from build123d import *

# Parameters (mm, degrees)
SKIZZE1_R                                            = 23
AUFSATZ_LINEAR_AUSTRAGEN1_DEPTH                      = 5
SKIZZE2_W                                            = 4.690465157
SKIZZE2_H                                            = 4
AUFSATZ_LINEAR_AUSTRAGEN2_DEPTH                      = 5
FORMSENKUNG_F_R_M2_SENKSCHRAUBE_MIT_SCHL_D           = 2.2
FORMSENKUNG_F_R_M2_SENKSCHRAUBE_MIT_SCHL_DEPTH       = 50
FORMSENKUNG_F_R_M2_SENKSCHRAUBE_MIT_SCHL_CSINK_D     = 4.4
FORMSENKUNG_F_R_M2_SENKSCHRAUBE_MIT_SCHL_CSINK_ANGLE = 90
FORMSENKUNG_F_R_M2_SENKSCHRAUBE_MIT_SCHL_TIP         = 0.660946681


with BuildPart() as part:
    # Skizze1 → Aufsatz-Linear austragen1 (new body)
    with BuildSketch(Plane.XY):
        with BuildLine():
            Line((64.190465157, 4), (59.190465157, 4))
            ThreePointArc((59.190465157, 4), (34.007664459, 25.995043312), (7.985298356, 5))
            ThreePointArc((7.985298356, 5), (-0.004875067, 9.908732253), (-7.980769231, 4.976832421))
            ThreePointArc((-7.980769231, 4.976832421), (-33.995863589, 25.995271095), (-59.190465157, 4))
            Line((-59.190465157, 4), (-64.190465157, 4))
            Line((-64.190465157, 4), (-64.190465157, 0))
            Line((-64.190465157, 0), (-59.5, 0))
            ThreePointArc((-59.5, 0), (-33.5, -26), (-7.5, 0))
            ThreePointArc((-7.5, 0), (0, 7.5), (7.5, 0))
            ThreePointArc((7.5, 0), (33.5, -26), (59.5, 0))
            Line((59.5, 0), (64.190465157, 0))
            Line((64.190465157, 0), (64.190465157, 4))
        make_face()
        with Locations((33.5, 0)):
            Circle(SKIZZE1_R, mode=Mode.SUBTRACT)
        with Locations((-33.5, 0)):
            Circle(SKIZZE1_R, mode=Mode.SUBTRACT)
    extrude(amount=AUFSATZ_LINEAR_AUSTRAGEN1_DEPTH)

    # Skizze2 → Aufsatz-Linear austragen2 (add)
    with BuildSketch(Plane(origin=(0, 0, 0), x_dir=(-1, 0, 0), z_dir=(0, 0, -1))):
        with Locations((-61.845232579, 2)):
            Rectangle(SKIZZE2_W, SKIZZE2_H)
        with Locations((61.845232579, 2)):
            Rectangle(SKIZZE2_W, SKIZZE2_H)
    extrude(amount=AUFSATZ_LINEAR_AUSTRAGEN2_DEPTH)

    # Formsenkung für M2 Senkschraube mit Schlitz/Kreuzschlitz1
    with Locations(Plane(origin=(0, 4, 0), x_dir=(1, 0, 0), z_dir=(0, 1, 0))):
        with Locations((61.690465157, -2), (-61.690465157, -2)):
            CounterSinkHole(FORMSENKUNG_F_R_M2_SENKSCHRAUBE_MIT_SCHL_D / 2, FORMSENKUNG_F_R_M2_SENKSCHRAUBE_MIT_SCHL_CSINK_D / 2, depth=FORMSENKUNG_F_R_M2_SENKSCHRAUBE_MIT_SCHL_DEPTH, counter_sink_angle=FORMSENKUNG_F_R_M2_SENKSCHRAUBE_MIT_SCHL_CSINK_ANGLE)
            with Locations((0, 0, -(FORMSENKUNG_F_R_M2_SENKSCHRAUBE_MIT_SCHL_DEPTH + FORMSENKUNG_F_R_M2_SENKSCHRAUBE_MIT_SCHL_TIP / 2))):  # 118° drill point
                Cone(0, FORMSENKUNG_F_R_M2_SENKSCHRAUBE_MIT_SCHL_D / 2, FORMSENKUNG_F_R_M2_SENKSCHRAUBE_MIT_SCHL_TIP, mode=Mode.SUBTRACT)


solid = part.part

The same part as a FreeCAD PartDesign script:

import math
import FreeCAD as App
import Part
import Sketcher

doc = App.newDocument("Part")
params = doc.addObject("Spreadsheet::Sheet", "Params")
for row, (alias, value) in enumerate([
    ("sketch1_diameter", "46 mm"),
    ("sketch1_radius", "26 mm"),
    ("sketch1_radius2", "7.5 mm"),
    ("sketch1_width", "5 mm"),
    ("sketch1_height", "4 mm"),
    ("pad1_length", "5 mm"),
    ("sketch2_height", "4 mm"),
    ("pad2_length", "5 mm"),
    ("sketch3_diameter", "2.2 mm"),
    ("hole_diameter", "2.2 mm"),
    ("hole_depth", "50 mm"),
    ("hole_csink_diameter", "4.4 mm"),
], start=1):
    params.set(f"A{row}", alias)
    params.set(f"B{row}", "=" + value)
    params.setAlias(f"B{row}", alias)

body = doc.addObject("PartDesign::Body", "Body")

# Sketch on XY plane
sketch1 = doc.addObject("Sketcher::SketchObject", "Sketch")
body.addObject(sketch1)
sketch1.AttachmentSupport = (doc.XY_Plane, [""])
sketch1.MapMode = "FlatFace"
sketch1.addGeometry([
    Part.LineSegment(App.Vector(64.2, 4, 0), App.Vector(59.2, 4, 0)),  # 0
    Part.ArcOfCircle(Part.Circle(App.Vector(33.5, 0, 0), App.Vector(0, 0, 1), 26), math.radians(9), math.radians(169)),  # 1
    Part.ArcOfCircle(Part.Circle(App.Vector(0, 1, 0), App.Vector(0, 0, 1), 8.9), math.radians(27), math.radians(153)),  # 2
    Part.ArcOfCircle(Part.Circle(App.Vector(-33.5, 0, 0), App.Vector(0, 0, 1), 26), math.radians(11), math.radians(171)),  # 3
    Part.LineSegment(App.Vector(-59.2, 4, 0), App.Vector(-64.2, 4, 0)),  # 4
    Part.LineSegment(App.Vector(-64.2, 4, 0), App.Vector(-64.2, 0, 0)),  # 5
    Part.LineSegment(App.Vector(-64.2, 0, 0), App.Vector(-59.5, 0, 0)),  # 6
    Part.ArcOfCircle(Part.Circle(App.Vector(-33.5, 0, 0), App.Vector(0, 0, 1), 26), math.radians(180), math.radians(360)),  # 7
    Part.ArcOfCircle(Part.Circle(App.Vector(0, 0, 0), App.Vector(0, 0, 1), 7.5), math.radians(0), math.radians(180)),  # 8
    Part.ArcOfCircle(Part.Circle(App.Vector(33.5, 0, 0), App.Vector(0, 0, 1), 26), math.radians(180), math.radians(360)),  # 9
    Part.LineSegment(App.Vector(59.5, 0, 0), App.Vector(64.2, 0, 0)),  # 10
    Part.LineSegment(App.Vector(64.2, 0, 0), App.Vector(64.2, 4, 0)),  # 11
    Part.Circle(App.Vector(-33.5, 0, 0), App.Vector(0, 0, 1), 23),  # 12
    Part.Circle(App.Vector(33.5, 0, 0), App.Vector(0, 0, 1), 23),  # 13
], False)
sketch1.addConstraint([
    Sketcher.Constraint("Coincident", 0, 2, 1, 1),
    Sketcher.Constraint("Coincident", 1, 2, 2, 1),
    Sketcher.Constraint("Coincident", 2, 2, 3, 1),
    Sketcher.Constraint("Coincident", 3, 2, 4, 1),
    Sketcher.Constraint("Coincident", 4, 2, 5, 1),
    Sketcher.Constraint("Coincident", 5, 2, 6, 1),
    Sketcher.Constraint("Coincident", 6, 2, 7, 1),
    Sketcher.Constraint("Tangent", 7, 2, 8, 2),
    Sketcher.Constraint("Tangent", 8, 1, 9, 1),
    Sketcher.Constraint("Coincident", 9, 2, 10, 1),
    Sketcher.Constraint("Coincident", 10, 2, 11, 1),
    Sketcher.Constraint("Coincident", 11, 2, 0, 1),
    Sketcher.Constraint("Horizontal", 0),
    Sketcher.Constraint("Horizontal", 4),
    Sketcher.Constraint("Vertical", 5),
    Sketcher.Constraint("Horizontal", 6),
    Sketcher.Constraint("Horizontal", 10),
    Sketcher.Constraint("Vertical", 11),
    Sketcher.Constraint("Coincident", 8, 3, -1, 1),
    Sketcher.Constraint("Coincident", 7, 3, 3, 3),
    Sketcher.Constraint("Coincident", 9, 3, 1, 3),
    Sketcher.Constraint("Coincident", 12, 3, 3, 3),
    Sketcher.Constraint("Coincident", 13, 3, 1, 3),
    Sketcher.Constraint("Equal", 1, 3),
    Sketcher.Constraint("Equal", 3, 7),
    Sketcher.Constraint("Equal", 7, 9),
    Sketcher.Constraint("Equal", 12, 13),
    Sketcher.Constraint("Symmetric", 5, 2, 10, 2, -1, 1),
    Sketcher.Constraint("Symmetric", 0, 2, 3, 2, -2),
    Sketcher.Constraint("PointOnObject", 1, 3, -1),
    Sketcher.Constraint("PointOnObject", 5, 2, -1),
    Sketcher.Constraint("Diameter", 12, 46.0),
    Sketcher.Constraint("Radius", 1, 26.0),
    Sketcher.Constraint("Radius", 8, 7.5),
    Sketcher.Constraint("DistanceX", 0, 2, 0, 1, 5.0),
    Sketcher.Constraint("DistanceY", 5, 2, 5, 1, 4.0),
    Sketcher.Constraint("DistanceY", -1, 1, 1, 2, 5.0),
    Sketcher.Constraint("Radius", 2, 8.936258),
    Sketcher.Constraint("DistanceX", -1, 1, 2, 3, 0.008092),
])
sketch1.setExpression("Constraints[31]", "Params.sketch1_diameter")
sketch1.setExpression("Constraints[32]", "Params.sketch1_radius")
sketch1.setExpression("Constraints[33]", "Params.sketch1_radius2")
sketch1.setExpression("Constraints[34]", "Params.sketch1_width")
sketch1.setExpression("Constraints[35]", "Params.sketch1_height")
pad1 = doc.addObject("PartDesign::Pad", "Pad")
body.addObject(pad1)
pad1.Profile = sketch1
pad1.setExpression("Length", "Params.pad1_length")

# Sketch on XY plane
sketch2 = doc.addObject("Sketcher::SketchObject", "Sketch001")
body.addObject(sketch2)
sketch2.AttachmentSupport = (doc.XY_Plane, [""])
sketch2.MapMode = "FlatFace"
sketch2.addGeometry([
    Part.LineSegment(App.Vector(64.2, 4, 0), App.Vector(64.2, 0, 0)),  # 0
    Part.LineSegment(App.Vector(64.2, 0, 0), App.Vector(59.5, 0, 0)),  # 1
    Part.LineSegment(App.Vector(59.5, 0, 0), App.Vector(59.5, 4, 0)),  # 2
    Part.LineSegment(App.Vector(59.5, 4, 0), App.Vector(64.2, 4, 0)),  # 3
    Part.LineSegment(App.Vector(-59.5, 4, 0), App.Vector(-59.5, 0, 0)),  # 4
    Part.LineSegment(App.Vector(-59.5, 0, 0), App.Vector(-64.2, 0, 0)),  # 5
    Part.LineSegment(App.Vector(-64.2, 0, 0), App.Vector(-64.2, 4, 0)),  # 6
    Part.LineSegment(App.Vector(-64.2, 4, 0), App.Vector(-59.5, 4, 0)),  # 7
], False)
sketch2.addConstraint([
    Sketcher.Constraint("Coincident", 0, 2, 1, 1),
    Sketcher.Constraint("Coincident", 1, 2, 2, 1),
    Sketcher.Constraint("Coincident", 2, 2, 3, 1),
    Sketcher.Constraint("Coincident", 3, 2, 0, 1),
    Sketcher.Constraint("Coincident", 4, 2, 5, 1),
    Sketcher.Constraint("Coincident", 5, 2, 6, 1),
    Sketcher.Constraint("Coincident", 6, 2, 7, 1),
    Sketcher.Constraint("Coincident", 7, 2, 4, 1),
    Sketcher.Constraint("Vertical", 0),
    Sketcher.Constraint("Horizontal", 1),
    Sketcher.Constraint("Vertical", 2),
    Sketcher.Constraint("Horizontal", 3),
    Sketcher.Constraint("Vertical", 4),
    Sketcher.Constraint("Horizontal", 5),
    Sketcher.Constraint("Vertical", 6),
    Sketcher.Constraint("Horizontal", 7),
    Sketcher.Constraint("Symmetric", 1, 2, 4, 2, -1, 1),
    Sketcher.Constraint("Symmetric", 0, 2, 5, 2, -2),
    Sketcher.Constraint("Horizontal", 3, 2, 6, 2),
    Sketcher.Constraint("DistanceY", 0, 2, 0, 1, 4.0),
    Sketcher.Constraint("DistanceX", 4, 2, 1, 2, 119.0),
    Sketcher.Constraint("DistanceX", 1, 2, 1, 1, 4.690465),
])
sketch2.setExpression("Constraints[19]", "Params.sketch2_height")
pad2 = doc.addObject("PartDesign::Pad", "Pad001")
body.addObject(pad2)
pad2.Profile = sketch2
pad2.setExpression("Length", "Params.pad2_length")
pad2.Reversed = True

# Sketch on XZ plane
sketch3 = doc.addObject("Sketcher::SketchObject", "Sketch002")
body.addObject(sketch3)
sketch3.AttachmentSupport = (doc.XZ_Plane, [""])
sketch3.MapMode = "FlatFace"
sketch3.AttachmentOffset = App.Placement(App.Vector(0, 0, -4), App.Rotation())
sketch3.addGeometry([
    Part.Circle(App.Vector(61.7, 2, 0), App.Vector(0, 0, 1), 1.1),
    Part.Circle(App.Vector(-61.7, 2, 0), App.Vector(0, 0, 1), 1.1),
], False)
sketch3.addConstraint([
    Sketcher.Constraint("Equal", 0, 1),
    Sketcher.Constraint("Symmetric", 0, 3, 1, 3, -2),
    Sketcher.Constraint("Diameter", 0, 2.2),
    Sketcher.Constraint("DistanceY", -1, 1, 0, 3, 2.0),
    Sketcher.Constraint("DistanceX", 1, 3, 0, 3, 123.38093),
])
sketch3.setExpression("Constraints[2]", "Params.sketch3_diameter")
doc.recompute()
hole = doc.addObject("PartDesign::Hole", "Hole")
body.addObject(hole)
hole.Profile = sketch3
hole.ThreadType = "None"
hole.setExpression("Diameter", "Params.hole_diameter")
hole.DepthType = "Dimension"
hole.setExpression("Depth", "Params.hole_depth")
hole.DrillPoint = "Angled"
hole.DrillPointAngle = 118
hole.HoleCutType = "Countersink"
hole.setExpression("HoleCutDiameter", "Params.hole_csink_diameter")
hole.HoleCutCountersinkAngle = 90
hole.Reversed = True

doc.recompute()
